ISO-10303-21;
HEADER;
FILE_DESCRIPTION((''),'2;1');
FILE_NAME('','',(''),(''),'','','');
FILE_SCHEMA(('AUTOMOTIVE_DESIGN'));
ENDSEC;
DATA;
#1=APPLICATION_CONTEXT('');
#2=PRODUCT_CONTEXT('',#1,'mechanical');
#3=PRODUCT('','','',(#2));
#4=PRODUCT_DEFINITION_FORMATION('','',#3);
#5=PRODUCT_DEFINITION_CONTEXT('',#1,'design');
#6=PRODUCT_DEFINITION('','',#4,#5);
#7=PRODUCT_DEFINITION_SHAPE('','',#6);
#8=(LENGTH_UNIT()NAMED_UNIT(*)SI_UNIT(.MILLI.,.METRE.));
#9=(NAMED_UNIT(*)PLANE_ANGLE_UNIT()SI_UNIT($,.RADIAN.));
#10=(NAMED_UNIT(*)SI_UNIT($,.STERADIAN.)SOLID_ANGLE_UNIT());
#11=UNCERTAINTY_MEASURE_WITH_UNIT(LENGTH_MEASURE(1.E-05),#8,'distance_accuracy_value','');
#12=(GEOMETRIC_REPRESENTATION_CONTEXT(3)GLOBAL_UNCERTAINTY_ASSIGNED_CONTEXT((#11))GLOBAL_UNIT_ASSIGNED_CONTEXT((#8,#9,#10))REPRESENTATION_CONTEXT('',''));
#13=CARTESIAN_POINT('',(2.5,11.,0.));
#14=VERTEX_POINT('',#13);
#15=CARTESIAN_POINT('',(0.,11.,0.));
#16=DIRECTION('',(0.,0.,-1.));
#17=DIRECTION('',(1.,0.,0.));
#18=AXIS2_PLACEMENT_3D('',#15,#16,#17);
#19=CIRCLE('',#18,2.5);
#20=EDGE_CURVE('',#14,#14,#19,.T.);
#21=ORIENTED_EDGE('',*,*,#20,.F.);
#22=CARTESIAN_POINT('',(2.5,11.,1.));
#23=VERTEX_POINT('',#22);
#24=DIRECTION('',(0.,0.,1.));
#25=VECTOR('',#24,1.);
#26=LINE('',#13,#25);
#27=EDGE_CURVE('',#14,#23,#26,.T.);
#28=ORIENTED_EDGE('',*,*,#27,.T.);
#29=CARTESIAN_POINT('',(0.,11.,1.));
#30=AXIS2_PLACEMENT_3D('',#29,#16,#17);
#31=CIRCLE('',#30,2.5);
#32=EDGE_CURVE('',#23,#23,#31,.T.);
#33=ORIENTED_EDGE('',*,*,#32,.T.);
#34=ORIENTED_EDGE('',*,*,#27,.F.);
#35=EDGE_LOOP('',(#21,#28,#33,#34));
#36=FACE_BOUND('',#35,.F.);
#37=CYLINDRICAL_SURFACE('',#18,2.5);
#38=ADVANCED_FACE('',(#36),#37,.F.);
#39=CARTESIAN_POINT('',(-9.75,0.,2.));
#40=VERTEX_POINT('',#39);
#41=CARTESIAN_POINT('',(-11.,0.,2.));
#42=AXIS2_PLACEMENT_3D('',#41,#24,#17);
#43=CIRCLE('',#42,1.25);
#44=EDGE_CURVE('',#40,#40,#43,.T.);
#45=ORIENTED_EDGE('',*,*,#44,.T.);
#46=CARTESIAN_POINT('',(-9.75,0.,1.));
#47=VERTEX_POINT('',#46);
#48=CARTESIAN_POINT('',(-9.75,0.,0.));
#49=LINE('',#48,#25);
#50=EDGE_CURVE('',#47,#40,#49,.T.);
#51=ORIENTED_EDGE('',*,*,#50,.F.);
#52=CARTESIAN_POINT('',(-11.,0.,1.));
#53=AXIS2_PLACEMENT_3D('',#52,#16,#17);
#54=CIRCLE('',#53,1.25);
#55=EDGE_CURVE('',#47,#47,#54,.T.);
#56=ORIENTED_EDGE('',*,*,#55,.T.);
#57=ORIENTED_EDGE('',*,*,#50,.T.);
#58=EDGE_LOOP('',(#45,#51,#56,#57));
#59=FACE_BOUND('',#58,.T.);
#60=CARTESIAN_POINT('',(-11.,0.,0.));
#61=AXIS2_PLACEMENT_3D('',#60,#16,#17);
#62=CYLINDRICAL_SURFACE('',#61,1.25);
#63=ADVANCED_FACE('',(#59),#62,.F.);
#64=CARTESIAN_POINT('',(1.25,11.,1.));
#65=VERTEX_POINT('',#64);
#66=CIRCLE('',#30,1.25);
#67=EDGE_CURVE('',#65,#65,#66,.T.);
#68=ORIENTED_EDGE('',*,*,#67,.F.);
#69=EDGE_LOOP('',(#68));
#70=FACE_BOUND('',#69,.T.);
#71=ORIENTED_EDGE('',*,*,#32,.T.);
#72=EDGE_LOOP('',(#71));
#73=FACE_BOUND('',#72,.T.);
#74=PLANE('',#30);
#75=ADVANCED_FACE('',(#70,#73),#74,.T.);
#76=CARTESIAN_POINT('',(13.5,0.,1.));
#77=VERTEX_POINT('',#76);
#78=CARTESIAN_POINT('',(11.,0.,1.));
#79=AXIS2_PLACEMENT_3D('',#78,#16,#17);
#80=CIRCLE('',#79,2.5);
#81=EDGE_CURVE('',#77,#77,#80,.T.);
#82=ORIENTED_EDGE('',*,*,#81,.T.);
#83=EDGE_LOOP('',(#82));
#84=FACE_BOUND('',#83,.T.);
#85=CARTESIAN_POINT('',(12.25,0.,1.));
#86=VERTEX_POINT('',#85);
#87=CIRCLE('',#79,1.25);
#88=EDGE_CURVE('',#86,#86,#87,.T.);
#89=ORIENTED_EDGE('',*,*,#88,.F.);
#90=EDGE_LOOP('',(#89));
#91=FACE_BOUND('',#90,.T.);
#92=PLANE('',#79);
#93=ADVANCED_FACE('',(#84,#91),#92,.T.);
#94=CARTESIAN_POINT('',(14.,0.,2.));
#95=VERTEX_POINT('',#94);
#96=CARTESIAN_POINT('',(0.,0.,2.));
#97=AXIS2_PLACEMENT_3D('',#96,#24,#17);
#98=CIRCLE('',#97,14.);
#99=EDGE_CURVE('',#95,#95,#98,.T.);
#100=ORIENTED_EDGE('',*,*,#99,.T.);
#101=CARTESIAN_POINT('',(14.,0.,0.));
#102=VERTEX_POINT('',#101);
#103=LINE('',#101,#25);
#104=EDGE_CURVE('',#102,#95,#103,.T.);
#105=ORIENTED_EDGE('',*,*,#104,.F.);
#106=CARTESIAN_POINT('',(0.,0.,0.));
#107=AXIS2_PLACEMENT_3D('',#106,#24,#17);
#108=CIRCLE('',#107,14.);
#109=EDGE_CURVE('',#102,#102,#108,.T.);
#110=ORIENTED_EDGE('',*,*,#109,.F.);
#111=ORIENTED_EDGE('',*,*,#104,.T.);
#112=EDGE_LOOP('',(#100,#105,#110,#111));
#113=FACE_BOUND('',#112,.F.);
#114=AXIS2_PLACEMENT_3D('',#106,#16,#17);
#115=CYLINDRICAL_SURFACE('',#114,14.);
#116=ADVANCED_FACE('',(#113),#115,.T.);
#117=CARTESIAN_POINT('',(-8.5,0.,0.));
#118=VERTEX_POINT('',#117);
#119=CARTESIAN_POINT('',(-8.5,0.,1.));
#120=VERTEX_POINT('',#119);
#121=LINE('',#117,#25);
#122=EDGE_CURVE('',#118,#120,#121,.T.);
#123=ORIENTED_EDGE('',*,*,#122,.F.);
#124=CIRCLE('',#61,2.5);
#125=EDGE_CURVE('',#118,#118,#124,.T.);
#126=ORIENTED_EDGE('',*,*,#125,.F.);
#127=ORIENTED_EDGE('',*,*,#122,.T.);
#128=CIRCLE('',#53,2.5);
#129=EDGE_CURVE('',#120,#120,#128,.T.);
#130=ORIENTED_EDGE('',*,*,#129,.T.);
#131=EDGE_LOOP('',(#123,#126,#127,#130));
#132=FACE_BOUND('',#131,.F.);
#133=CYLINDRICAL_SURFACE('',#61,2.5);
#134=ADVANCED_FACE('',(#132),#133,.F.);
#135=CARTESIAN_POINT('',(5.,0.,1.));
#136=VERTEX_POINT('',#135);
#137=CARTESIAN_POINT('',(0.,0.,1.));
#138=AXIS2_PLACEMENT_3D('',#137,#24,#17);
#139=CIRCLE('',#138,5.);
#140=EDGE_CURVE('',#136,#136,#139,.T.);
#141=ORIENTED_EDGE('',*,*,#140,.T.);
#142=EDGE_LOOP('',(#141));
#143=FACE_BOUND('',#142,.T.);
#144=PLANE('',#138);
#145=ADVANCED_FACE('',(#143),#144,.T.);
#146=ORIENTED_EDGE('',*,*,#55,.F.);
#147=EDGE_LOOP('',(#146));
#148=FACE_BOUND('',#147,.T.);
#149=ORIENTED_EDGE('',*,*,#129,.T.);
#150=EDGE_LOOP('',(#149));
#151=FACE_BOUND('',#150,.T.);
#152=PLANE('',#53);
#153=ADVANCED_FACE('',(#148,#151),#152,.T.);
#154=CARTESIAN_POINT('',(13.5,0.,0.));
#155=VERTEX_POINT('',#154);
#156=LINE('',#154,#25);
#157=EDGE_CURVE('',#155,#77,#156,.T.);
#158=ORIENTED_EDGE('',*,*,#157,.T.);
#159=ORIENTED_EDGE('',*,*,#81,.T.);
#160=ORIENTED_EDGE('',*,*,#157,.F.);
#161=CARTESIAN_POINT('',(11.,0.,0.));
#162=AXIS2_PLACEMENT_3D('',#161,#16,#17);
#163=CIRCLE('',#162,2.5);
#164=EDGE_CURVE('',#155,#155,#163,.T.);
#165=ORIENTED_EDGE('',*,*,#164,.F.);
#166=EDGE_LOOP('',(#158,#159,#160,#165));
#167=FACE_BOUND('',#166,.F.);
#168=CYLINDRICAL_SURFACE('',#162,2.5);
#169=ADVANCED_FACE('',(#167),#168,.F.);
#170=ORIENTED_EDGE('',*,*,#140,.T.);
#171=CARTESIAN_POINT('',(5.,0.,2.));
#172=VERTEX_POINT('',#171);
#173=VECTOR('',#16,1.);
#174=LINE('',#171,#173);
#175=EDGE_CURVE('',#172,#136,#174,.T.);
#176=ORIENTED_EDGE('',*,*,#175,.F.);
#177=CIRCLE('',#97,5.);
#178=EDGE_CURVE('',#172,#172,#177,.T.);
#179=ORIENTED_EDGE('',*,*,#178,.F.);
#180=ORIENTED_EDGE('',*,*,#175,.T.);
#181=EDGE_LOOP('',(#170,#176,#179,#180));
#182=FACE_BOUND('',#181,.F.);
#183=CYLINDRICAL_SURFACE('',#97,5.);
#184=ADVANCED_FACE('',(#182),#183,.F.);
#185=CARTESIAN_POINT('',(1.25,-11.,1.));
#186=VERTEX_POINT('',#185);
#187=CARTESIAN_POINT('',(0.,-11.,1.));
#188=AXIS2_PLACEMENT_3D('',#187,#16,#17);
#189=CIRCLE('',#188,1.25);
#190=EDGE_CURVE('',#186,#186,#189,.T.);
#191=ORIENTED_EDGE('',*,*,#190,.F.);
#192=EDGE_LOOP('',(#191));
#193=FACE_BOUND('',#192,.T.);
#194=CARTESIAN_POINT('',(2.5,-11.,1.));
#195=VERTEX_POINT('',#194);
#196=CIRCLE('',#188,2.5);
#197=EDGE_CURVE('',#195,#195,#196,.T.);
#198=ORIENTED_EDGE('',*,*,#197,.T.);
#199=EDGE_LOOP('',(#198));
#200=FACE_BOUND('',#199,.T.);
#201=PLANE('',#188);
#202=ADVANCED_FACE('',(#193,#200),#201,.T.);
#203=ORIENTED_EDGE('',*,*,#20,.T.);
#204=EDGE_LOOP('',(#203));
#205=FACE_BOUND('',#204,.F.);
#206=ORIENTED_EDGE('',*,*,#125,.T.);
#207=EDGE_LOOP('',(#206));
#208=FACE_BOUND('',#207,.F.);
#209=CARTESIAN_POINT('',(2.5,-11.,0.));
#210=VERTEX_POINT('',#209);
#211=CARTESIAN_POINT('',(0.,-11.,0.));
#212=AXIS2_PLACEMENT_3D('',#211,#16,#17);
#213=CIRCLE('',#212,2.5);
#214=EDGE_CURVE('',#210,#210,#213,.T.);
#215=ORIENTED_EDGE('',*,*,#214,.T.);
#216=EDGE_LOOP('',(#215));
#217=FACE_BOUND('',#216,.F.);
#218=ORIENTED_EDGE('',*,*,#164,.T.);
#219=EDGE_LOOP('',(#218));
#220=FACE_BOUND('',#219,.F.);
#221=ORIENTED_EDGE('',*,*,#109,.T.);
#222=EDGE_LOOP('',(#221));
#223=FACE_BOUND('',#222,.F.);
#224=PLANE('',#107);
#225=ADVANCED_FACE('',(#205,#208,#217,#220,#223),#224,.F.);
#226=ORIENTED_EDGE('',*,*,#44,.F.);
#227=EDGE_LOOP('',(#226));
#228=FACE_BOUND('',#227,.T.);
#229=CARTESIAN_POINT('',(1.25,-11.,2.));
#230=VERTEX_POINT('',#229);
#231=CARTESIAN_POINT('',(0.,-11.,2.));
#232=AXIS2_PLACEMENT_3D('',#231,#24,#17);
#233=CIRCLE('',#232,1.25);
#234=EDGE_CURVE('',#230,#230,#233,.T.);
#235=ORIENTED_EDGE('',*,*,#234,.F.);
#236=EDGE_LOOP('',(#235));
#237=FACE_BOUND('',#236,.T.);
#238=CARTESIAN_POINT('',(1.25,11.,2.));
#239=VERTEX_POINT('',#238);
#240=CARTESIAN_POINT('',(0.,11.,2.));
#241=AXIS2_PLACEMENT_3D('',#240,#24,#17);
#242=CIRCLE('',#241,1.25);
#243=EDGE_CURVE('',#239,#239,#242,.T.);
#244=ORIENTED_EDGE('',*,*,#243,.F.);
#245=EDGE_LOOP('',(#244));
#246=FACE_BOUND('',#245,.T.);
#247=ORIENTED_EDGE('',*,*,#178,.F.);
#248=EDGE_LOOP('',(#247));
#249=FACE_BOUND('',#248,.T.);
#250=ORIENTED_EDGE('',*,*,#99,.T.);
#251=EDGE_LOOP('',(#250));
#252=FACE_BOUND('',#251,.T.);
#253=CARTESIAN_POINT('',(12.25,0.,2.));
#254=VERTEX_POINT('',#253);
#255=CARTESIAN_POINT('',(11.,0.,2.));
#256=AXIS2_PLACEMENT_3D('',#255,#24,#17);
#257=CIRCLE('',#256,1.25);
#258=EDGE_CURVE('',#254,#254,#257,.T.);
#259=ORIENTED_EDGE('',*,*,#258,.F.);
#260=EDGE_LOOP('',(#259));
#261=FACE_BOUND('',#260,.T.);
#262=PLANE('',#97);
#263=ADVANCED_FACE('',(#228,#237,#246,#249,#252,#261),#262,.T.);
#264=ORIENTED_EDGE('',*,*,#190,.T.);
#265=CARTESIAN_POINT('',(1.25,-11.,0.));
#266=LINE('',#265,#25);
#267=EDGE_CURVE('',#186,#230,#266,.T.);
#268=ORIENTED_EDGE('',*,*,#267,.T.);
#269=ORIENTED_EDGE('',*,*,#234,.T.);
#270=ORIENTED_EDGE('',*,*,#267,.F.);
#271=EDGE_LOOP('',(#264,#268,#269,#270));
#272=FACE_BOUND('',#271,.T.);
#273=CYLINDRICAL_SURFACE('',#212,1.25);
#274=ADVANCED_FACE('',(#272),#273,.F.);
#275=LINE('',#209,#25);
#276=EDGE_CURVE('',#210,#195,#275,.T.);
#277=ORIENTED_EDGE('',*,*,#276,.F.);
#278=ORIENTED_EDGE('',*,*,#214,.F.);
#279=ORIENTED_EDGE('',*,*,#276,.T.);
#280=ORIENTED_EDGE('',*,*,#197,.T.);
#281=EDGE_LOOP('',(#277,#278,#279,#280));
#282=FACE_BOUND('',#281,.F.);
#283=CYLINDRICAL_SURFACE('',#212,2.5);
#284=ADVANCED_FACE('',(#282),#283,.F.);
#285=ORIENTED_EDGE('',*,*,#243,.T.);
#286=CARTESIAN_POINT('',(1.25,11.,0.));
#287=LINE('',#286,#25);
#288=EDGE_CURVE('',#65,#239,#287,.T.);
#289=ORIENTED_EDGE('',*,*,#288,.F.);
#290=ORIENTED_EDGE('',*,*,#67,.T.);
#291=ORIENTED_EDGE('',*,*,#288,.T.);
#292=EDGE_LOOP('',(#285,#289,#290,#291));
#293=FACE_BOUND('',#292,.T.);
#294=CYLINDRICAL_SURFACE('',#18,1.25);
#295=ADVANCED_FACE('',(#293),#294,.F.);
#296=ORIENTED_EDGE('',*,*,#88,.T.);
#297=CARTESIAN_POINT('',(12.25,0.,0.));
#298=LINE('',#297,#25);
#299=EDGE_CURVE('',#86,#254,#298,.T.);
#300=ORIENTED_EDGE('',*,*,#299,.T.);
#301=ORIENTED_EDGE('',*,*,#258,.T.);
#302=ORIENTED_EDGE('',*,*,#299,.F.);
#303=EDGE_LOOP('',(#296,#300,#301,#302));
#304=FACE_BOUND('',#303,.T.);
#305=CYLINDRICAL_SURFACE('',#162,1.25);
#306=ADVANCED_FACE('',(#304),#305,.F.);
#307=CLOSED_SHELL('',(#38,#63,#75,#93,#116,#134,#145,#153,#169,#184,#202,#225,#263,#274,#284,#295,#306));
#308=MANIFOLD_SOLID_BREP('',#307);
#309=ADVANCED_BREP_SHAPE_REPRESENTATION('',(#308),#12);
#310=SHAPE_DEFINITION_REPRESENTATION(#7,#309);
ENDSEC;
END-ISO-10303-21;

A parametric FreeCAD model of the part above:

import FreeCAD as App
import Part
import Sketcher

doc = App.newDocument("Part")
body = doc.addObject("PartDesign::Body", "Body")

# Sketch on XY plane
sketch1 = doc.addObject("Sketcher::SketchObject", "Sketch")
body.addObject(sketch1)
sketch1.AttachmentSupport = (doc.XY_Plane, [""])
sketch1.MapMode = "FlatFace"
sketch1.addGeometry(Part.Circle(App.Vector(0, 0, 0), App.Vector(0, 0, 1), 14), False)
sketch1.addGeometry(Part.Circle(App.Vector(0, -11, 0), App.Vector(0, 0, 1), 1.2), False)
sketch1.addGeometry(Part.Circle(App.Vector(-11, 0, 0), App.Vector(0, 0, 1), 1.2), False)
sketch1.addGeometry(Part.Circle(App.Vector(11, 0, 0), App.Vector(0, 0, 1), 1.2), False)
sketch1.addGeometry(Part.Circle(App.Vector(0, 11, 0), App.Vector(0, 0, 1), 1.2), False)
sketch1.addConstraint(Sketcher.Constraint("Coincident", 0, 3, -1, 1))
sketch1.addConstraint(Sketcher.Constraint("Equal", 1, 2))
sketch1.addConstraint(Sketcher.Constraint("Equal", 2, 3))
sketch1.addConstraint(Sketcher.Constraint("Equal", 3, 4))
sketch1.addConstraint(Sketcher.Constraint("Symmetric", 2, 3, 3, 3, -1, 1))
sketch1.addConstraint(Sketcher.Constraint("Symmetric", 1, 3, 4, 3, -1, 1))
sketch1.addConstraint(Sketcher.Constraint("PointOnObject", 1, 3, -2))
sketch1.addConstraint(Sketcher.Constraint("PointOnObject", 2, 3, -1))
sketch1.addConstraint(Sketcher.Constraint("Diameter", 0, 28.0))
sketch1.addConstraint(Sketcher.Constraint("Diameter", 1, 2.5))
sketch1.addConstraint(Sketcher.Constraint("DistanceY", 1, 3, -1, 1, 11.0))
sketch1.addConstraint(Sketcher.Constraint("DistanceX", 2, 3, -1, 1, 11.0))
pad1 = doc.addObject("PartDesign::Pad", "Pad")
body.addObject(pad1)
pad1.Profile = sketch1
pad1.Length = 2

# Sketch on XY plane
sketch2 = doc.addObject("Sketcher::SketchObject", "Sketch001")
body.addObject(sketch2)
sketch2.AttachmentSupport = (doc.XY_Plane, [""])
sketch2.MapMode = "FlatFace"
sketch2.AttachmentOffset = App.Placement(App.Vector(0, 0, 2), App.Rotation())
sketch2.addGeometry(Part.Circle(App.Vector(0, 0, 0), App.Vector(0, 0, 1), 5), False)
sketch2.addConstraint(Sketcher.Constraint("Coincident", 0, 3, -1, 1))
sketch2.addConstraint(Sketcher.Constraint("Diameter", 0, 10.0))
pocket1 = doc.addObject("PartDesign::Pocket", "Pocket")
body.addObject(pocket1)
pocket1.Profile = sketch2
pocket1.Length = 1

# Sketch on XY plane
sketch3 = doc.addObject("Sketcher::SketchObject", "Sketch002")
body.addObject(sketch3)
sketch3.AttachmentSupport = (doc.XY_Plane, [""])
sketch3.MapMode = "FlatFace"
sketch3.addGeometry(Part.Circle(App.Vector(0, -11, 0), App.Vector(0, 0, 1), 2.5), False)
sketch3.addGeometry(Part.Circle(App.Vector(11, 0, 0), App.Vector(0, 0, 1), 2.5), False)
sketch3.addGeometry(Part.Circle(App.Vector(-11, 0, 0), App.Vector(0, 0, 1), 2.5), False)
sketch3.addGeometry(Part.Circle(App.Vector(0, 11, 0), App.Vector(0, 0, 1), 2.5), False)
sketch3.addConstraint(Sketcher.Constraint("Equal", 0, 1))
sketch3.addConstraint(Sketcher.Constraint("Equal", 1, 2))
sketch3.addConstraint(Sketcher.Constraint("Equal", 2, 3))
sketch3.addConstraint(Sketcher.Constraint("Symmetric", 1, 3, 2, 3, -1, 1))
sketch3.addConstraint(Sketcher.Constraint("Symmetric", 0, 3, 3, 3, -1, 1))
sketch3.addConstraint(Sketcher.Constraint("PointOnObject", 0, 3, -2))
sketch3.addConstraint(Sketcher.Constraint("PointOnObject", 1, 3, -1))
sketch3.addConstraint(Sketcher.Constraint("Diameter", 0, 5.0))
sketch3.addConstraint(Sketcher.Constraint("DistanceY", 0, 3, -1, 1, 11.0))
sketch3.addConstraint(Sketcher.Constraint("DistanceX", -1, 1, 1, 3, 11.0))
pocket2 = doc.addObject("PartDesign::Pocket", "Pocket001")
body.addObject(pocket2)
pocket2.Profile = sketch3
pocket2.Length = 1
pocket2.Reversed = True

doc.recompute()
